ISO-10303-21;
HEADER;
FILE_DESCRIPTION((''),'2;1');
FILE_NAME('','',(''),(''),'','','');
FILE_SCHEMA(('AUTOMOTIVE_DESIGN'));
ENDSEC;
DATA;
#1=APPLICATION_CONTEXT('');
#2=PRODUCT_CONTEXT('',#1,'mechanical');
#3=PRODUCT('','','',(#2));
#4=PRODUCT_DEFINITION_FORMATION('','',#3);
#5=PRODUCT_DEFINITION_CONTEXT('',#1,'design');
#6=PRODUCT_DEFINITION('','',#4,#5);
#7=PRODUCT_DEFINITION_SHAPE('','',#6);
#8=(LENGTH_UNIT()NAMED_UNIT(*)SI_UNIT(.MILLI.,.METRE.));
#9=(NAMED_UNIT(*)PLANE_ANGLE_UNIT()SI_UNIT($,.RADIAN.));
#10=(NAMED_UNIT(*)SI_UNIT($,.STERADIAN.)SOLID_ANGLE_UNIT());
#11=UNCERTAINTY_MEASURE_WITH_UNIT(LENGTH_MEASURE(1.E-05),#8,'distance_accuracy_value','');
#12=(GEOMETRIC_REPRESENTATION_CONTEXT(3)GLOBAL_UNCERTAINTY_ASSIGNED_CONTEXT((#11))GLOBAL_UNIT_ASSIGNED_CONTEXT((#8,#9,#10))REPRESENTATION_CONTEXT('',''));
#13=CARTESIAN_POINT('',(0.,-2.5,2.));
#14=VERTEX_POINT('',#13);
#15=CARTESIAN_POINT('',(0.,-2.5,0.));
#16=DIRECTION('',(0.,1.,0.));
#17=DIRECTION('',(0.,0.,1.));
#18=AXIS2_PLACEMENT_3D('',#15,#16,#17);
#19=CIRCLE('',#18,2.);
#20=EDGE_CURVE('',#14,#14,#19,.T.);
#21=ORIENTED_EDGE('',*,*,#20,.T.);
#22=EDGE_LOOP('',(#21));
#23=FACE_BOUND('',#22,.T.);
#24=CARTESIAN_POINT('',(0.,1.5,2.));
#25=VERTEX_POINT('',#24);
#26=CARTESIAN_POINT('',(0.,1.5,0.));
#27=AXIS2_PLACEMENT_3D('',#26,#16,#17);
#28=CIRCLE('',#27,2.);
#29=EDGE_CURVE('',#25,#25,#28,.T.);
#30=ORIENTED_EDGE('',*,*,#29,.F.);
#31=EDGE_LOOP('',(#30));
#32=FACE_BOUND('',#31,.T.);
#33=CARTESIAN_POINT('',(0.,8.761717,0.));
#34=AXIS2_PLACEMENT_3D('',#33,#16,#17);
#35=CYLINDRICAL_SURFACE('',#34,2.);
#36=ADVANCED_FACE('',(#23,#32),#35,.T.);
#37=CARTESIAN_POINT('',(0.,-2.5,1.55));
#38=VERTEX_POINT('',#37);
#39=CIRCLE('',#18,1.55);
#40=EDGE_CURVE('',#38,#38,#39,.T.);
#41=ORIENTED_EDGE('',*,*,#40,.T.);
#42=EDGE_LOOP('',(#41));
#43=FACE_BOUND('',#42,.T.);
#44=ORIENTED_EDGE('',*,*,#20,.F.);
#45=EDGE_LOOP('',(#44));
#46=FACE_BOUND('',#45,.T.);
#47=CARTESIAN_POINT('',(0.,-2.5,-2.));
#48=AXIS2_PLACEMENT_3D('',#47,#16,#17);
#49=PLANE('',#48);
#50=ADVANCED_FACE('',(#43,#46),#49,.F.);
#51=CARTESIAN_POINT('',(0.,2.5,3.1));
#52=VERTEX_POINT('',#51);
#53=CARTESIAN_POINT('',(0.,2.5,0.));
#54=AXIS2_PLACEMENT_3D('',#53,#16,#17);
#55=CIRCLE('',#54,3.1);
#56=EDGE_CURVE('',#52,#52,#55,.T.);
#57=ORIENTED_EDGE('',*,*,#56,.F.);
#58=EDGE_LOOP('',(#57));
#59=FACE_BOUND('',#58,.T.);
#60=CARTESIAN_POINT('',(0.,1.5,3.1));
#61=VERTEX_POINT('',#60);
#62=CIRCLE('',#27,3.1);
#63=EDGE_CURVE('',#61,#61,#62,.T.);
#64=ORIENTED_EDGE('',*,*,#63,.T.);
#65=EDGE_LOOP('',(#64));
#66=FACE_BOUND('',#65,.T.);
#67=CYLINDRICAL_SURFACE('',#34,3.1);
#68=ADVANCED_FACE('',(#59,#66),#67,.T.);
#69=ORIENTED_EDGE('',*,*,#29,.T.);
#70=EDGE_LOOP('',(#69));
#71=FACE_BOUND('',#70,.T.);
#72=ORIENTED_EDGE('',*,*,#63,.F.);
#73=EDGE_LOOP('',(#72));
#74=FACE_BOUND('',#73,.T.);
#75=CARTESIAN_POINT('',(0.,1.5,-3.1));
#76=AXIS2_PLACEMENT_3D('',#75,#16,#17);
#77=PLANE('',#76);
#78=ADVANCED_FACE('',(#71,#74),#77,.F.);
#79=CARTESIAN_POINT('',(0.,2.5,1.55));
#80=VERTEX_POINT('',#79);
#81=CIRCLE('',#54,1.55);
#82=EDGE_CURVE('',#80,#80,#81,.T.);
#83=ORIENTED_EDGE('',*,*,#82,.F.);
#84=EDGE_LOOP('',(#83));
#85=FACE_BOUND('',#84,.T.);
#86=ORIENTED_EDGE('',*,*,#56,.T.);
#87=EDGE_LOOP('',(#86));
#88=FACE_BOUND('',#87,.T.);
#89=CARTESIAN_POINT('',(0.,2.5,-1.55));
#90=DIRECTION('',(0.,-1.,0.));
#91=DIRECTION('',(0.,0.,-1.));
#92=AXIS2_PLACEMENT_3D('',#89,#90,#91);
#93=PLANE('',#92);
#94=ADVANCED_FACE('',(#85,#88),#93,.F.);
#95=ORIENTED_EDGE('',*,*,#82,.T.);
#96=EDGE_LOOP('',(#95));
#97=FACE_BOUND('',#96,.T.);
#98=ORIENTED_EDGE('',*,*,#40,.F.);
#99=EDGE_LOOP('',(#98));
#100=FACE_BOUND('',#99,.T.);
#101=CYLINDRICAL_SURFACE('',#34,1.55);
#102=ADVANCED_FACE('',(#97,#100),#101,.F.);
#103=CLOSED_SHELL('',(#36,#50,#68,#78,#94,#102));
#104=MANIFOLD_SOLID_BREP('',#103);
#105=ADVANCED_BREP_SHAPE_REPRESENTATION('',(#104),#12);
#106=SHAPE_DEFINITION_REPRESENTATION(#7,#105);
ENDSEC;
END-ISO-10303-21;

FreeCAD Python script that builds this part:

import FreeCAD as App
import Part
import Sketcher

V = App.Vector
Q = App.Units.Quantity

doc = App.newDocument("Part")
body = doc.addObject("PartDesign::Body", "Body")

# Sketch on YZ plane
sketch1 = doc.addObject("Sketcher::SketchObject", "Sketch")
body.addObject(sketch1)
sketch1.AttachmentSupport = (doc.YZ_Plane, [""])
sketch1.MapMode = "FlatFace"
sketch1.addGeometry([
    Part.LineSegment(V(2.5, -3.1, 0), V(2.5, -1.55, 0)),  # 0
    Part.LineSegment(V(2.5, -1.55, 0), V(-2.5, -1.55, 0)),  # 1
    Part.LineSegment(V(-2.5, -1.55, 0), V(-2.5, -2, 0)),  # 2
    Part.LineSegment(V(-2.5, -2, 0), V(1.5, -2, 0)),  # 3
    Part.LineSegment(V(1.5, -2, 0), V(1.5, -3.1, 0)),  # 4
    Part.LineSegment(V(1.5, -3.1, 0), V(2.5, -3.1, 0)),  # 5
], False)
sketch1.addConstraint([
    Sketcher.Constraint("Coincident", 0, 2, 1, 1),
    Sketcher.Constraint("Coincident", 1, 2, 2, 1),
    Sketcher.Constraint("Coincident", 2, 2, 3, 1),
    Sketcher.Constraint("Coincident", 3, 2, 4, 1),
    Sketcher.Constraint("Coincident", 4, 2, 5, 1),
    Sketcher.Constraint("Coincident", 5, 2, 0, 1),
    Sketcher.Constraint("Vertical", 0),
    Sketcher.Constraint("Horizontal", 1),
    Sketcher.Constraint("Vertical", 2),
    Sketcher.Constraint("Horizontal", 3),
    Sketcher.Constraint("Vertical", 4),
    Sketcher.Constraint("Horizontal", 5),
    Sketcher.Constraint("DistanceX", 1, 2, 1, 1, Q("5 mm")),
    Sketcher.Constraint("DistanceX", 3, 1, 3, 2, Q("4 mm")),
    Sketcher.Constraint("DistanceY", 4, 2, 4, 1, Q("1.1 mm")),
    Sketcher.Constraint("DistanceY", 2, 2, -1, 1, Q("2 mm")),
    Sketcher.Constraint("DistanceY", 0, 1, 0, 2, Q("1.55 mm")),
    Sketcher.Constraint("DistanceX", -1, 1, 0, 2, Q("2.5 mm")),
])
revolution = doc.addObject("PartDesign::Revolution", "Revolution")
body.addObject(revolution)
revolution.Profile = sketch1
revolution.ReferenceAxis = (sketch1, ["H_Axis"])
revolution.Angle = 360

doc.recompute()
